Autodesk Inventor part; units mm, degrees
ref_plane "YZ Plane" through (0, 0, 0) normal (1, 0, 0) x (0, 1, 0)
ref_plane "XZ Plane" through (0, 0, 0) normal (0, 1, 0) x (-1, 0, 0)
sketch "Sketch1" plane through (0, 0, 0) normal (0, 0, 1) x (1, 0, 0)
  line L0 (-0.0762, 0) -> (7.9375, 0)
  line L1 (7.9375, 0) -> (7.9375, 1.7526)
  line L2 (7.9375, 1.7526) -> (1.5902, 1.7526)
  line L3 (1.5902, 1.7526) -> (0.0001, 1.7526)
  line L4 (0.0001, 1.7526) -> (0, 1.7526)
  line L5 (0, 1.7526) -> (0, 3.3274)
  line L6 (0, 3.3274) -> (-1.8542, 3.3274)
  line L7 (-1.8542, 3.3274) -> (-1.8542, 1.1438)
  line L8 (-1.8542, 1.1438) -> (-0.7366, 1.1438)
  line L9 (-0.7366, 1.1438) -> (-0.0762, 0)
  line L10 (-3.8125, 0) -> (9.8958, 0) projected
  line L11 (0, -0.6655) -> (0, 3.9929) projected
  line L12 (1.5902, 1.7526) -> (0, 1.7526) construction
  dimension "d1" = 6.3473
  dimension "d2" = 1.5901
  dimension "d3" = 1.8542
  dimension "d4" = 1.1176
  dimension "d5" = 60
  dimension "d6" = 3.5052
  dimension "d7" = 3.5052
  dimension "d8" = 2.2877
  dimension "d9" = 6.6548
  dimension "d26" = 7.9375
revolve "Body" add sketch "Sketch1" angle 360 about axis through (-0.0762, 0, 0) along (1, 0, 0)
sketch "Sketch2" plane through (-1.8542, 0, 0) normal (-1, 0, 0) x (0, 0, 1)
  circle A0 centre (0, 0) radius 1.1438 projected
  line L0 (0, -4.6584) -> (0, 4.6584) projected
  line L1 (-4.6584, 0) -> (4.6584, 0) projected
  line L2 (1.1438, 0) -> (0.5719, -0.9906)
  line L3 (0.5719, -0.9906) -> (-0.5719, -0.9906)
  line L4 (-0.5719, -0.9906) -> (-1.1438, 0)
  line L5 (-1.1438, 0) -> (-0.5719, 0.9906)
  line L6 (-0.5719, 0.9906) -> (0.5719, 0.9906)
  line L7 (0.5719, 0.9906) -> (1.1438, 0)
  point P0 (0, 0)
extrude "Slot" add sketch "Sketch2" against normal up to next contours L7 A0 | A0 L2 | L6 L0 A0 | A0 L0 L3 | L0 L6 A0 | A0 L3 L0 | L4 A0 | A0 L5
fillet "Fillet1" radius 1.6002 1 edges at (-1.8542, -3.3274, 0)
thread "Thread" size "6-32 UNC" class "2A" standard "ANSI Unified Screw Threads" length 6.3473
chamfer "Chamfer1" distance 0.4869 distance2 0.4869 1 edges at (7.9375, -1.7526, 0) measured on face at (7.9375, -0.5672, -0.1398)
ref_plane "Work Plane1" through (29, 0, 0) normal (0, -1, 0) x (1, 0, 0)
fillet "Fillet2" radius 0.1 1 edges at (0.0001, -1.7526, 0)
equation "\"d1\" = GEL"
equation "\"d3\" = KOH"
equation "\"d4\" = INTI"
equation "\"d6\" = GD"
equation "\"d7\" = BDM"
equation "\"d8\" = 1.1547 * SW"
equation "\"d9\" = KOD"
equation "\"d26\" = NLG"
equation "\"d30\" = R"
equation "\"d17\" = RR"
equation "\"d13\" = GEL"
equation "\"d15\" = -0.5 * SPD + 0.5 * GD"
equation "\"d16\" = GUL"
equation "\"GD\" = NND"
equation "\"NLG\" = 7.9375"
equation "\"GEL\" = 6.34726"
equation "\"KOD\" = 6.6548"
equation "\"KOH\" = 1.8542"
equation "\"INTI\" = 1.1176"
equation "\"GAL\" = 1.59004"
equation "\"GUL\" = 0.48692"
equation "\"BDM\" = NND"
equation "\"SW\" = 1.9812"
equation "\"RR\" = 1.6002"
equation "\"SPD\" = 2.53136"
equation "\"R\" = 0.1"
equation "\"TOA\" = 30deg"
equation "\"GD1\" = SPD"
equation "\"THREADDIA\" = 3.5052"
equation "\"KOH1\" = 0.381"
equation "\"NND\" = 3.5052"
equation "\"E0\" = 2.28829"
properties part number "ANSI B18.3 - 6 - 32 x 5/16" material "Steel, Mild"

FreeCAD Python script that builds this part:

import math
import FreeCAD as App
import Part
import Sketcher
Q = App.Units.Quantity


def edges_at(feature, points):
    """Names of the edges that pass closest to the given points."""
    edges = feature.Shape.Edges
    near = lambda p: min(range(len(edges)), key=lambda i: edges[i].distToShape(Part.Vertex(*p))[0])
    return sorted({f"Edge{near(p) + 1}" for p in points})


def add_polygon(sketch, points):
    """Adds a closed chain of lines whose ends are joined by coincident constraints."""
    first, n = sketch.GeometryCount, len(points)
    for a, b in zip(points, points[1:] + points[:1]):
        sketch.addGeometry(Part.LineSegment(App.Vector(*a, 0), App.Vector(*b, 0)), False)
    for i in range(n):
        sketch.addConstraint(Sketcher.Constraint("Coincident", first + i, 2, first + (i + 1) % n, 1))

doc = App.newDocument("Part")
params = doc.addObject("Spreadsheet::Sheet", "Params")
for row, (alias, value) in enumerate([
    ("sketch1_width", "0.3125 in"),
    ("sketch1_width2", "0.073 in"),
    ("sketch1_width3", "0.044 in"),
    ("sketch1_height", "0.069 in"),
    ("sketch1_height2", "0.062 in"),
    ("revolution_angle", "360 deg"),
    ("fillet_radius", "0.063 in"),
    ("chamfer_size", "0.4869 mm"),
    ("chamfer_size2", "0.4869 mm"),
    ("fillet2_radius", "0.1 mm"),
], start=1):
    params.set(f"A{row}", alias)
    params.set(f"B{row}", "=" + value)
    params.setAlias(f"B{row}", alias)

body = doc.addObject("PartDesign::Body", "Body")

sketch1 = body.newObject("Sketcher::SketchObject", "Sketch")
sketch1.AttachmentSupport = (doc.getObject("XY_Plane"), [""])
sketch1.MapMode = "FlatFace"
add_polygon(sketch1, [(-0.7, 1.1), (-0.1, 0), (7.9, 0), (7.9, 1.8), (0, 1.8), (0, 3.3), (-1.9, 3.3), (-1.9, 1.1)])
sketch1.addConstraint([
    Sketcher.Constraint("Horizontal", 1),
    Sketcher.Constraint("Vertical", 2),
    Sketcher.Constraint("Horizontal", 3),
    Sketcher.Constraint("Vertical", 4),
    Sketcher.Constraint("Horizontal", 5),
    Sketcher.Constraint("Vertical", 6),
    Sketcher.Constraint("Horizontal", 7),
    Sketcher.Constraint("PointOnObject", 0, 2, -1),
    Sketcher.Constraint("PointOnObject", 3, 2, -2),
    Sketcher.Constraint("DistanceX", 3, 2, 3, 1, Q("0.3125 in")),
    Sketcher.Constraint("DistanceX", 5, 2, 5, 1, Q("0.073 in")),
    Sketcher.Constraint("DistanceX", 7, 1, 7, 2, Q("0.044 in")),
    Sketcher.Constraint("Angle", 0, Q("-59.999 deg")),
    Sketcher.Constraint("DistanceY", 2, 1, 2, 2, Q("0.069 in")),
    Sketcher.Constraint("DistanceY", 4, 1, 4, 2, Q("0.062 in")),
    Sketcher.Constraint("DistanceX", 5, 2, 0, 2, Q("0.07 in")),
])
sketch1.setExpression("Constraints[17]", "Params.sketch1_width")
sketch1.setExpression("Constraints[18]", "Params.sketch1_width2")
sketch1.setExpression("Constraints[19]", "Params.sketch1_width3")
sketch1.setExpression("Constraints[21]", "Params.sketch1_height")
sketch1.setExpression("Constraints[22]", "Params.sketch1_height2")
revolution = body.newObject("PartDesign::Revolution", "Revolution")
revolution.Profile = sketch1
revolution.ReferenceAxis = (sketch1, ["H_Axis"])
revolution.setExpression("Angle", "Params.revolution_angle")

sketch2 = body.newObject("Sketcher::SketchObject", "Sketch001")
sketch2.AttachmentSupport = (doc.getObject("YZ_Plane"), [""])
sketch2.MapMode = "FlatFace"
sketch2.AttachmentOffset = App.Placement(App.Vector(0, 0, -0.073 * 25.4), App.Rotation())
sketch2.addGeometry([
    Part.LineSegment(App.Vector(1, 0.6, 0), App.Vector(0, 1.1, 0)),
    Part.ArcOfCircle(Part.Circle(App.Vector(0, 0, 0), App.Vector(0, 0, 1), 1.1), math.radians(30), math.radians(90)),
    Part.ArcOfCircle(Part.Circle(App.Vector(0, 0, 0), App.Vector(0, 0, 1), 1.1), math.radians(90), math.radians(150)),
    Part.LineSegment(App.Vector(0, 1.1, 0), App.Vector(-1, 0.6, 0)),
    Part.ArcOfCircle(Part.Circle(App.Vector(0, 0, 0), App.Vector(0, 0, 1), 1.1), math.radians(-30), math.radians(30)),
    Part.LineSegment(App.Vector(1, 0.6, 0), App.Vector(1, -0.6, 0)),
    Part.LineSegment(App.Vector(-1, 0.6, 0), App.Vector(-1, -0.6, 0)),
    Part.ArcOfCircle(Part.Circle(App.Vector(0, 0, 0), App.Vector(0, 0, 1), 1.1), math.radians(150), math.radians(210)),
    Part.LineSegment(App.Vector(-1, -0.6, 0), App.Vector(0, -1.1, 0)),
    Part.ArcOfCircle(Part.Circle(App.Vector(0, 0, 0), App.Vector(0, 0, 1), 1.1), math.radians(-150), math.radians(-90)),
    Part.ArcOfCircle(Part.Circle(App.Vector(0, 0, 0), App.Vector(0, 0, 1), 1.1), math.radians(-90), math.radians(-30)),
    Part.LineSegment(App.Vector(0, -1.1, 0), App.Vector(1, -0.6, 0)),
], False)
sketch2.addConstraint([
    Sketcher.Constraint("Coincident", 0, 1, 1, 1),
    Sketcher.Constraint("Coincident", 1, 2, 0, 2),
    Sketcher.Constraint("Coincident", 2, 1, 3, 1),
    Sketcher.Constraint("Coincident", 3, 2, 2, 2),
    Sketcher.Constraint("Coincident", 4, 1, 5, 2),
    Sketcher.Constraint("Coincident", 5, 1, 4, 2),
    Sketcher.Constraint("Coincident", 6, 1, 7, 1),
    Sketcher.Constraint("Coincident", 7, 2, 6, 2),
    Sketcher.Constraint("Coincident", 8, 1, 9, 1),
    Sketcher.Constraint("Coincident", 9, 2, 8, 2),
    Sketcher.Constraint("Coincident", 10, 1, 11, 1),
    Sketcher.Constraint("Coincident", 11, 2, 10, 2),
    Sketcher.Constraint("Vertical", 5),
    Sketcher.Constraint("Vertical", 6),
    Sketcher.Constraint("Coincident", 1, 3, -1, 1),
    Sketcher.Constraint("Coincident", 2, 3, -1, 1),
    Sketcher.Constraint("Coincident", 4, 3, -1, 1),
    Sketcher.Constraint("Coincident", 7, 3, -1, 1),
    Sketcher.Constraint("Coincident", 9, 3, -1, 1),
    Sketcher.Constraint("Coincident", 10, 3, -1, 1),
    Sketcher.Constraint("Coincident", 2, 1, 1, 2),
    Sketcher.Constraint("Coincident", 5, 1, 0, 1),
    Sketcher.Constraint("Coincident", 6, 1, 3, 2),
    Sketcher.Constraint("Coincident", 8, 1, 7, 2),
    Sketcher.Constraint("Coincident", 10, 1, 9, 2),
    Sketcher.Constraint("PointOnObject", 1, 2, -2),
    Sketcher.Constraint("PointOnObject", 9, 2, -2),
    Sketcher.Constraint("Parallel", 0, 8),
    Sketcher.Constraint("Parallel", 3, 11),
    Sketcher.Constraint("Angle", 0, Q("150.001 deg")),
    Sketcher.Constraint("Radius", 1, Q("1.1438 mm")),
])
pad1 = body.newObject("PartDesign::Pad", "Pad")
pad1.Profile = sketch2
pad1.Type = "UpToFirst"
doc.recompute()

fillet = body.newObject("PartDesign::Fillet", "Fillet")
fillet.Base = (pad1, edges_at(pad1, [(-1.854, -3.327, 0)]))
fillet.setExpression("Radius", "Params.fillet_radius")
doc.recompute()

chamfer = body.newObject("PartDesign::Chamfer", "Chamfer")
chamfer.Base = (fillet, edges_at(fillet, [(7.938, -1.753, 0)]))
chamfer.ChamferType = "Two distances"
chamfer.setExpression("Size", "Params.chamfer_size")
chamfer.setExpression("Size2", "Params.chamfer_size2")
doc.recompute()

fillet2 = body.newObject("PartDesign::Fillet", "Fillet001")
fillet2.Base = (chamfer, edges_at(chamfer, [(0, -1.753, 0)]))
fillet2.setExpression("Radius", "Params.fillet2_radius")

doc.recompute()
